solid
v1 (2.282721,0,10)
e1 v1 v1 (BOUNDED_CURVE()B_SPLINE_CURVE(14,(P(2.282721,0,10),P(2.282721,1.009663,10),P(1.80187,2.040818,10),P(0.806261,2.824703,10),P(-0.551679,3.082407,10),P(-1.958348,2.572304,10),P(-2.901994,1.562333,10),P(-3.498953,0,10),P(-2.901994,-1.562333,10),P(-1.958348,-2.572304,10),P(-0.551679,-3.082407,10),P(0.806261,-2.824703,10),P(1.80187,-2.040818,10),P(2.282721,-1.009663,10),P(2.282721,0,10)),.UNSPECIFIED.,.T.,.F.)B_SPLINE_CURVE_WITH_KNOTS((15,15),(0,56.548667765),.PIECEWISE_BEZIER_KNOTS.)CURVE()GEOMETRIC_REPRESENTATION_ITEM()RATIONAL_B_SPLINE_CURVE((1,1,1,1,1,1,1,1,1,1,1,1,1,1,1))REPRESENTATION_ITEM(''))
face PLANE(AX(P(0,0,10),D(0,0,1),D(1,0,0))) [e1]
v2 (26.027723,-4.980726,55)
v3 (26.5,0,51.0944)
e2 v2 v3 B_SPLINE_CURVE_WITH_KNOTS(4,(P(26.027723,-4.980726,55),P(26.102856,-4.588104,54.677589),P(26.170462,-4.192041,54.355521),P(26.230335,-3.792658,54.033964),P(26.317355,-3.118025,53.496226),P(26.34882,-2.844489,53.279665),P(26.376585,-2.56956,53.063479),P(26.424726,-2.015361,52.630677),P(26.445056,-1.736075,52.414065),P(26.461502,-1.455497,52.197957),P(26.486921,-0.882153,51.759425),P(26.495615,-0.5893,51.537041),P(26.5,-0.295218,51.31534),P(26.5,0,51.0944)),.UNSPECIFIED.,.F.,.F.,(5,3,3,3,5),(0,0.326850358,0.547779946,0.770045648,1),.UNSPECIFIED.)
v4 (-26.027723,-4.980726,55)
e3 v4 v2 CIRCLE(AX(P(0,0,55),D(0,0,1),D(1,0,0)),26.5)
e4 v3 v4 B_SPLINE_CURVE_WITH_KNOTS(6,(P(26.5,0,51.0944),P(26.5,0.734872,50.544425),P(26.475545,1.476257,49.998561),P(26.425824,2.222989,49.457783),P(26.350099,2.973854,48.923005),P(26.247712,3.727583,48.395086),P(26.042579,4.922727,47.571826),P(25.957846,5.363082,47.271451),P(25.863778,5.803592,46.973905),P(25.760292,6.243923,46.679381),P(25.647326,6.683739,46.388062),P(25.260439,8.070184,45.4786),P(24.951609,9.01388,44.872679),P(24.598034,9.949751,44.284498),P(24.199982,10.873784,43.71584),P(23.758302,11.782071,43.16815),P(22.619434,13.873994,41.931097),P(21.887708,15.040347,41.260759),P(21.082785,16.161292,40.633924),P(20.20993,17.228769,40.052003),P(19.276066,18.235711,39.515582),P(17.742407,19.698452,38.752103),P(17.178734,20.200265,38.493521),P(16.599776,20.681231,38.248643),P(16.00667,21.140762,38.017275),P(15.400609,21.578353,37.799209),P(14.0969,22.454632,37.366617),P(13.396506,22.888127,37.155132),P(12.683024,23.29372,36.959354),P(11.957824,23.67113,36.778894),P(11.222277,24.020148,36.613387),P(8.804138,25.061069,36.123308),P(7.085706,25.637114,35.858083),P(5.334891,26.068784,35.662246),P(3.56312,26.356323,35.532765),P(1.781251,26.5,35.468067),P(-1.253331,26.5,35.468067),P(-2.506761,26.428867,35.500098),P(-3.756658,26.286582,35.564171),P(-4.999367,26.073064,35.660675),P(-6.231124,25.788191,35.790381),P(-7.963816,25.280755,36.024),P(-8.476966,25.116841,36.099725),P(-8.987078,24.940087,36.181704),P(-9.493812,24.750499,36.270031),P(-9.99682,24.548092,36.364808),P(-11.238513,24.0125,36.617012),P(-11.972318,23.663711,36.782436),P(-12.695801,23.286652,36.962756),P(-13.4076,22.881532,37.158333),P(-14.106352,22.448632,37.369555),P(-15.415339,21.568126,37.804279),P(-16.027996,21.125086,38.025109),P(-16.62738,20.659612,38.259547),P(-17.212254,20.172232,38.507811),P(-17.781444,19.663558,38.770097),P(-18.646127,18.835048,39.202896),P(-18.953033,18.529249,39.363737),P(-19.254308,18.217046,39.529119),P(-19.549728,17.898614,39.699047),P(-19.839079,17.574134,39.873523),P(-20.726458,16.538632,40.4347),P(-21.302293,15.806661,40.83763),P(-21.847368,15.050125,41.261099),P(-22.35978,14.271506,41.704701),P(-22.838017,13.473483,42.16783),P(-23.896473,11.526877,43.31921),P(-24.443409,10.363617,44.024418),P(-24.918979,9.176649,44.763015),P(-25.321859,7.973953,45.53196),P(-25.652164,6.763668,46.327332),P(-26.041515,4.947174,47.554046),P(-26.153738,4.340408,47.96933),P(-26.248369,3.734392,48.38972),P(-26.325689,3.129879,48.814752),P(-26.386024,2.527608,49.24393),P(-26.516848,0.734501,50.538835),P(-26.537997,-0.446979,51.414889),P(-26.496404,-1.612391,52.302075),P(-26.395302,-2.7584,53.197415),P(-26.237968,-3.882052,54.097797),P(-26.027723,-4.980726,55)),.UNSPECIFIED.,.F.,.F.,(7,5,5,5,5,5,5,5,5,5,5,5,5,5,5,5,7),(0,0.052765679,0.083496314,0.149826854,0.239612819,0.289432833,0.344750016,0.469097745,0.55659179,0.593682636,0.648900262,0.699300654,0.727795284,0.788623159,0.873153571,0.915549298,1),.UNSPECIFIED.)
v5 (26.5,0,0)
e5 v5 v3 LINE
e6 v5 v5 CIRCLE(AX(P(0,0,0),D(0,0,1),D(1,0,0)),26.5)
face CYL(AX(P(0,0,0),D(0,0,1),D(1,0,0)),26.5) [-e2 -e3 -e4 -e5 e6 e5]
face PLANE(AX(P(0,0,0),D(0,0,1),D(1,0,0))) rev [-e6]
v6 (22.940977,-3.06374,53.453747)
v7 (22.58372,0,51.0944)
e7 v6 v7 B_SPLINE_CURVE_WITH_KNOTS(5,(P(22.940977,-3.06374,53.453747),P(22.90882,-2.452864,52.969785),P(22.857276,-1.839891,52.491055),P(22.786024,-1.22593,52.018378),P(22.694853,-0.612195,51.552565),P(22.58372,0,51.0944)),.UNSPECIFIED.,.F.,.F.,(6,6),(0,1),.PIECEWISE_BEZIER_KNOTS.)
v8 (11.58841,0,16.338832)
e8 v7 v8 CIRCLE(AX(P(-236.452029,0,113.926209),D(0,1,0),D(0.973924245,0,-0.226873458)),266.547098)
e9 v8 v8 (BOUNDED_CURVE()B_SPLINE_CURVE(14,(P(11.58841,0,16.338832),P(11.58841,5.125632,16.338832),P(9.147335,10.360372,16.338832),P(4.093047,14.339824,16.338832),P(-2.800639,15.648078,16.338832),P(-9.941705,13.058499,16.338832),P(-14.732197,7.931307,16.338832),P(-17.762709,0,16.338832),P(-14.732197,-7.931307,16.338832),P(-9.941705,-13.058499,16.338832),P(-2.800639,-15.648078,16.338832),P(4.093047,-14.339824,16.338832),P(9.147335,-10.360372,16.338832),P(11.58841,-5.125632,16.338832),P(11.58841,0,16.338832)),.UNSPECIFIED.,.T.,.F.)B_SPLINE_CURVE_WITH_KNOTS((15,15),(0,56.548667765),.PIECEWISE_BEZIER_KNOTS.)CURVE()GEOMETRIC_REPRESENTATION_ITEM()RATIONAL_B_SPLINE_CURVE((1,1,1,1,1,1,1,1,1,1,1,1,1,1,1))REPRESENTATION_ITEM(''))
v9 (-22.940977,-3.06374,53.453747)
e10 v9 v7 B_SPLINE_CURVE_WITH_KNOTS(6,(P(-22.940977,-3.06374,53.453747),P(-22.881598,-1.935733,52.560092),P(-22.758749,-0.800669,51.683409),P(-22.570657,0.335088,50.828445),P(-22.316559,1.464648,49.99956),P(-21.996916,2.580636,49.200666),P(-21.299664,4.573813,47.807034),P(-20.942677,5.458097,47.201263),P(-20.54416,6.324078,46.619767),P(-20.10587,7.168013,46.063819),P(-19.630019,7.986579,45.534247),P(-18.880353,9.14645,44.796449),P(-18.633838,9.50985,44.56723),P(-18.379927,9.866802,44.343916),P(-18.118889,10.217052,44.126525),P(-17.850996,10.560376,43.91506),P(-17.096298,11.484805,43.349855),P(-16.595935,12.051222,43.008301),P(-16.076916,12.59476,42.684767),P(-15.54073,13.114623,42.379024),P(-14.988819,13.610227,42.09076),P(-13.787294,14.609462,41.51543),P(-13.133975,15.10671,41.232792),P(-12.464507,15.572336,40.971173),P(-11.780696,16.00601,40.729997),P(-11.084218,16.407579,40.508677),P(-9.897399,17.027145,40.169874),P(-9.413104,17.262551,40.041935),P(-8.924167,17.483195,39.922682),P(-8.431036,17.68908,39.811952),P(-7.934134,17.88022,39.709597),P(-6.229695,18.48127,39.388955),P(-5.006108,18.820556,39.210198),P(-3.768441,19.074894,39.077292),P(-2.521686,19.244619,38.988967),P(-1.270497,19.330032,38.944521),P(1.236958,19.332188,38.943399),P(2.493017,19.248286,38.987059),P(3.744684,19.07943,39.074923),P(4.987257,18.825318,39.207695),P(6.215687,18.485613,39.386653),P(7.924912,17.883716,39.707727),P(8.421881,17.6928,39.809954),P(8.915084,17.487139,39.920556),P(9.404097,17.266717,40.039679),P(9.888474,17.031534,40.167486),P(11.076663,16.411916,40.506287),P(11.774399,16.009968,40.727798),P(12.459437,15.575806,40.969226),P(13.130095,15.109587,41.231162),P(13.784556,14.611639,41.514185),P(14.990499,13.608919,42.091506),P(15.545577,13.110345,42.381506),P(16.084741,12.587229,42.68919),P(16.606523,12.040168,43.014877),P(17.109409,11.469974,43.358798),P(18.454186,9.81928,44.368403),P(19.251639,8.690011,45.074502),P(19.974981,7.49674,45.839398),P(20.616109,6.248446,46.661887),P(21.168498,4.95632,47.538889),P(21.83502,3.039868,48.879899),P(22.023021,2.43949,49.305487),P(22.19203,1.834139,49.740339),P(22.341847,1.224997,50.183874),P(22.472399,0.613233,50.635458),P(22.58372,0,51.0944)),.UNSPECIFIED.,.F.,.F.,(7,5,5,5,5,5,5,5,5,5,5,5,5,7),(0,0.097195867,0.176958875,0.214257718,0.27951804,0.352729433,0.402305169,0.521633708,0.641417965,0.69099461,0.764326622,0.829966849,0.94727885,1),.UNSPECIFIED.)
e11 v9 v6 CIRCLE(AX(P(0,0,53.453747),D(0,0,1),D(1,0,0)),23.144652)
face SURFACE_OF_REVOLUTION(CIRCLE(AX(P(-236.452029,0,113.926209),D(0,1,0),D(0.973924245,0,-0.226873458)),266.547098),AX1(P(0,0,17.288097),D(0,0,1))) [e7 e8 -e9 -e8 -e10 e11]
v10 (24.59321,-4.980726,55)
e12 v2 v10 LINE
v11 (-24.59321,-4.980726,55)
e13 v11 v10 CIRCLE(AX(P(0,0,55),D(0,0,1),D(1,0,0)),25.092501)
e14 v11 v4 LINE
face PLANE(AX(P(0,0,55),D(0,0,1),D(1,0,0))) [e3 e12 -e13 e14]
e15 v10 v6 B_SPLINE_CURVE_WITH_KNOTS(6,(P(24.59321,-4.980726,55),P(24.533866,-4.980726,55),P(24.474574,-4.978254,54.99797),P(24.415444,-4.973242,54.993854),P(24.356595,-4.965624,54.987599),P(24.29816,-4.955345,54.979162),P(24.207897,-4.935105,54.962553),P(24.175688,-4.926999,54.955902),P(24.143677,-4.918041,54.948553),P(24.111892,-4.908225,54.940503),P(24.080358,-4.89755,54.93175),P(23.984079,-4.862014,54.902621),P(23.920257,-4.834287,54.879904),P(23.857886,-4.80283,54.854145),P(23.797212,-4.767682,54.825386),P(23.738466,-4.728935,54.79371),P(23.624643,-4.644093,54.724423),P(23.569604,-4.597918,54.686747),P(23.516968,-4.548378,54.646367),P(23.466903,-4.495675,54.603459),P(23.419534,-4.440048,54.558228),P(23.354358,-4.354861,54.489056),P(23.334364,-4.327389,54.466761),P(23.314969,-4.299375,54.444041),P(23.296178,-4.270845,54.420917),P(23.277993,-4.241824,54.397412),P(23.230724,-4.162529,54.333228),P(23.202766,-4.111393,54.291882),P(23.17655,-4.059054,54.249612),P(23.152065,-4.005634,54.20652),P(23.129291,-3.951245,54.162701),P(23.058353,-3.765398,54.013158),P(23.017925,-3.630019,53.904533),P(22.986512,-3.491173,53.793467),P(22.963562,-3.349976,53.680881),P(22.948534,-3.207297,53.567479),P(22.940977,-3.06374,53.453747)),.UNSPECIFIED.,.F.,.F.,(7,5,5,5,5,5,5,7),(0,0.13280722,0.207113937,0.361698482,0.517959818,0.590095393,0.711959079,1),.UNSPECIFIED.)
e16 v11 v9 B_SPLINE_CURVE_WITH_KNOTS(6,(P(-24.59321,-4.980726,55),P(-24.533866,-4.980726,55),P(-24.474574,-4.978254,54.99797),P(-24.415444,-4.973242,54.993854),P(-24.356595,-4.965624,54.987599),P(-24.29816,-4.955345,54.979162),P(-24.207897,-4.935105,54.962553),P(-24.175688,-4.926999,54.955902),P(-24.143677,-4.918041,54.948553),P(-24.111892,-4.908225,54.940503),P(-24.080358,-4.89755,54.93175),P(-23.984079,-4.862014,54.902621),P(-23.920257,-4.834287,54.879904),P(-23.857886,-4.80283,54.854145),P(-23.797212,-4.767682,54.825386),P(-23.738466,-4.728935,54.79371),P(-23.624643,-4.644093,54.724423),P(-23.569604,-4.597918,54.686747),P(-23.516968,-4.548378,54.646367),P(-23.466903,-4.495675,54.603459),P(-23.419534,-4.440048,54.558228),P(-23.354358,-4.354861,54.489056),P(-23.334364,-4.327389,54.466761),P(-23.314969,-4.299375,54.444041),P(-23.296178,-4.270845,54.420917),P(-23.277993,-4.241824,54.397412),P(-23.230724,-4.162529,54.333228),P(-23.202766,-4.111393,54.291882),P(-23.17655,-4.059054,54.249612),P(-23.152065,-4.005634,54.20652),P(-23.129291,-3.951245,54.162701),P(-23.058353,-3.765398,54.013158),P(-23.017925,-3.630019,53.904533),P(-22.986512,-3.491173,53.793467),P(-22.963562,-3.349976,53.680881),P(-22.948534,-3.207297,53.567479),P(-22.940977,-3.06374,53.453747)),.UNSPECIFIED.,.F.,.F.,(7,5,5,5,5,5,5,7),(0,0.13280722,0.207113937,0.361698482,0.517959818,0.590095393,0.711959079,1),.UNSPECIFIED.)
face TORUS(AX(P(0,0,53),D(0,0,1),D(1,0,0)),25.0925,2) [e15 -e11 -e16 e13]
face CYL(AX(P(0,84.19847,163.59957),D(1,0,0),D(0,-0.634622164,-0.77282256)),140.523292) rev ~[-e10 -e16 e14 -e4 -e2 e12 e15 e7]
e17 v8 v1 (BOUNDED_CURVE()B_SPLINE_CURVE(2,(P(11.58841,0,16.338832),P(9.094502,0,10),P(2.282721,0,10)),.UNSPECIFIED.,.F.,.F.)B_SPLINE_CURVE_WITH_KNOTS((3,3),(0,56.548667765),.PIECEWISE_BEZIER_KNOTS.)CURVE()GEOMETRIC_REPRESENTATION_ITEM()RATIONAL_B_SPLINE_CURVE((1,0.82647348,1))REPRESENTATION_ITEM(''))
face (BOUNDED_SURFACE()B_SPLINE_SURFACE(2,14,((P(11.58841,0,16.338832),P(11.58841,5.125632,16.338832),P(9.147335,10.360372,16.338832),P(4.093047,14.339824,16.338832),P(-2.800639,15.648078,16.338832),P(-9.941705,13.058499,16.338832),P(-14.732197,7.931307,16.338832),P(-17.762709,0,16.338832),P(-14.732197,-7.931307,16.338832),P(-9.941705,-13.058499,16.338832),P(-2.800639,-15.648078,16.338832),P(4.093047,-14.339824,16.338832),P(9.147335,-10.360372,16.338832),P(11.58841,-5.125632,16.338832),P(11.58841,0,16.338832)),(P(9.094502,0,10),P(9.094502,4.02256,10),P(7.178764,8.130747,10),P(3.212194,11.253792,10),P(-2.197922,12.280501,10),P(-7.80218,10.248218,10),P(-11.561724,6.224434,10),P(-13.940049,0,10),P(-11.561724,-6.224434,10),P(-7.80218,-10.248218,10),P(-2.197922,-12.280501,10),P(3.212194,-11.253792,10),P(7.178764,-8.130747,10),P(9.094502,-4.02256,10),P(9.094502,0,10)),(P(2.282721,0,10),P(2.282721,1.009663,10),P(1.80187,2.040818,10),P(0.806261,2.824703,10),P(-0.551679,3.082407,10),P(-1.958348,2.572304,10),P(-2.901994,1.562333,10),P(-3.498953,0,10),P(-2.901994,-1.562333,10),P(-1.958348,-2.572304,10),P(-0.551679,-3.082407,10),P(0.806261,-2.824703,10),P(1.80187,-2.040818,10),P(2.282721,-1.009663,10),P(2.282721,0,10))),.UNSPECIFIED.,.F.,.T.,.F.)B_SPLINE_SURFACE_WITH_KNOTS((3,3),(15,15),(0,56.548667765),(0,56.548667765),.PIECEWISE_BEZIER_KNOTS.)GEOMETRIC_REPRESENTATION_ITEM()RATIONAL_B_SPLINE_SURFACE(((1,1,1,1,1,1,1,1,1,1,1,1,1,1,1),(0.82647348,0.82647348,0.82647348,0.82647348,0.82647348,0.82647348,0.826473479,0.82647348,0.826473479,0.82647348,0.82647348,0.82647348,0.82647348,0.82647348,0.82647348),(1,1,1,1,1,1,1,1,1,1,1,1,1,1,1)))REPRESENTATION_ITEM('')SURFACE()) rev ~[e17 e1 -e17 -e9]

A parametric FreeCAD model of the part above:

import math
import FreeCAD as App
import Part
import Sketcher
Q = App.Units.Quantity


def edges_at(feature, points):
    """Names of the edges that pass closest to the given points."""
    edges = feature.Shape.Edges
    near = lambda p: min(range(len(edges)), key=lambda i: edges[i].distToShape(Part.Vertex(*p))[0])
    return sorted({f"Edge{near(p) + 1}" for p in points})

doc = App.newDocument("Part")
body = doc.addObject("PartDesign::Body", "Body")

# Sketch on XZ plane
sketch1 = body.newObject("Sketcher::SketchObject", "Sketch")
sketch1.AttachmentSupport = (doc.getObject("XZ_Plane"), [""])
sketch1.MapMode = "FlatFace"
sketch1.addGeometry([
    Part.LineSegment(App.Vector(0, 10, 0), App.Vector(0, 0, 0)),  # 0
    Part.LineSegment(App.Vector(0, 0, 0), App.Vector(26.5, 0, 0)),  # 1
    Part.LineSegment(App.Vector(26.5, 0, 0), App.Vector(26.5, 55, 0)),  # 2
    Part.LineSegment(App.Vector(26.5, 55, 0), App.Vector(25.092501, 55, 0)),  # 3
    Part.ArcOfCircle(Part.Circle(App.Vector(25.0925, 53, 0), App.Vector(0, 0, 1), 2), math.radians(89.999976), math.radians(166.886938)),  # 4
    Part.ArcOfCircle(Part.Circle(App.Vector(-236.452029, 113.926209, 0), App.Vector(0, 0, 1), 266.547098), math.radians(-22.948159), math.radians(-13.113069)),  # 5
    Part.LineSegment(App.Vector(9, 10, 0), App.Vector(0, 10, 0)),  # 6
], False)
sketch1.addConstraint([
    Sketcher.Constraint("Coincident", 0, 2, 1, 1),
    Sketcher.Constraint("Coincident", 1, 2, 2, 1),
    Sketcher.Constraint("Coincident", 2, 2, 3, 1),
    Sketcher.Constraint("Tangent", 3, 2, 4, 1),
    Sketcher.Constraint("Tangent", 4, 2, 5, 2),
    Sketcher.Constraint("Coincident", 5, 1, 6, 1),
    Sketcher.Constraint("Coincident", 6, 2, 0, 1),
    Sketcher.Constraint("Vertical", 0),
    Sketcher.Constraint("Horizontal", 1),
    Sketcher.Constraint("Vertical", 2),
    Sketcher.Constraint("Horizontal", 3),
    Sketcher.Constraint("Horizontal", 6),
    Sketcher.Constraint("Coincident", 0, 2, -1, 1),
    Sketcher.Constraint("Radius", 4, Q("2 mm")),
    Sketcher.Constraint("DistanceX", 6, 2, 6, 1, Q("9 mm")),
    Sketcher.Constraint("DistanceY", 0, 2, 0, 1, Q("10 mm")),
    Sketcher.Constraint("DistanceY", 2, 1, 2, 2, Q("55 mm")),
    Sketcher.Constraint("DistanceX", 1, 1, 1, 2, Q("26.5 mm")),
    Sketcher.Constraint("DistanceX", 3, 2, 3, 1, Q("1.407499 mm")),
    Sketcher.Constraint("Radius", 5, Q("266.547098 mm")),
])
revolution = body.newObject("PartDesign::Revolution", "Revolution")
revolution.Profile = sketch1
revolution.ReferenceAxis = (sketch1, ["V_Axis"])
revolution.Angle = 360

# Sketch on YZ plane
sketch2 = body.newObject("Sketcher::SketchObject", "Sketch001")
sketch2.AttachmentSupport = (doc.getObject("YZ_Plane"), [""])
sketch2.MapMode = "FlatFace"
sketch2.addGeometry([
    Part.ArcOfCircle(Part.Circle(App.Vector(84.19847, 163.59957, 0), App.Vector(0, 0, 1), 140.523292), math.radians(-129.391967), math.radians(0)),
    Part.ArcOfCircle(Part.Circle(App.Vector(84.19847, 163.59957, 0), App.Vector(0, 0, 1), 140.523292), math.radians(0), math.radians(230.608033)),
], False)
sketch2.addConstraint([
    Sketcher.Constraint("Tangent", 0, 1, 1, 2),
    Sketcher.Constraint("Coincident", 1, 1, 0, 2),
    Sketcher.Constraint("Horizontal", 0, 3, 1, 1),
    Sketcher.Constraint("DistanceY", -1, 1, 0, 1, Q("55 mm")),
    Sketcher.Constraint("Radius", 0, Q("140.523292 mm")),
    Sketcher.Constraint("DistanceX", -1, 1, 0, 3, Q("84.19847 mm")),
    Sketcher.Constraint("DistanceY", -1, 1, 0, 3, Q("163.59957 mm")),
])
pocket1 = body.newObject("PartDesign::Pocket", "Pocket")
pocket1.Profile = sketch2
pocket1.Length = 105.63794
pocket1.Midplane = True
doc.recompute()

fillet = body.newObject("PartDesign::Fillet", "Fillet")
fillet.Base = (pocket1, edges_at(pocket1, [(-9, 0, 10)]))
fillet.Radius = 10

doc.recompute()
